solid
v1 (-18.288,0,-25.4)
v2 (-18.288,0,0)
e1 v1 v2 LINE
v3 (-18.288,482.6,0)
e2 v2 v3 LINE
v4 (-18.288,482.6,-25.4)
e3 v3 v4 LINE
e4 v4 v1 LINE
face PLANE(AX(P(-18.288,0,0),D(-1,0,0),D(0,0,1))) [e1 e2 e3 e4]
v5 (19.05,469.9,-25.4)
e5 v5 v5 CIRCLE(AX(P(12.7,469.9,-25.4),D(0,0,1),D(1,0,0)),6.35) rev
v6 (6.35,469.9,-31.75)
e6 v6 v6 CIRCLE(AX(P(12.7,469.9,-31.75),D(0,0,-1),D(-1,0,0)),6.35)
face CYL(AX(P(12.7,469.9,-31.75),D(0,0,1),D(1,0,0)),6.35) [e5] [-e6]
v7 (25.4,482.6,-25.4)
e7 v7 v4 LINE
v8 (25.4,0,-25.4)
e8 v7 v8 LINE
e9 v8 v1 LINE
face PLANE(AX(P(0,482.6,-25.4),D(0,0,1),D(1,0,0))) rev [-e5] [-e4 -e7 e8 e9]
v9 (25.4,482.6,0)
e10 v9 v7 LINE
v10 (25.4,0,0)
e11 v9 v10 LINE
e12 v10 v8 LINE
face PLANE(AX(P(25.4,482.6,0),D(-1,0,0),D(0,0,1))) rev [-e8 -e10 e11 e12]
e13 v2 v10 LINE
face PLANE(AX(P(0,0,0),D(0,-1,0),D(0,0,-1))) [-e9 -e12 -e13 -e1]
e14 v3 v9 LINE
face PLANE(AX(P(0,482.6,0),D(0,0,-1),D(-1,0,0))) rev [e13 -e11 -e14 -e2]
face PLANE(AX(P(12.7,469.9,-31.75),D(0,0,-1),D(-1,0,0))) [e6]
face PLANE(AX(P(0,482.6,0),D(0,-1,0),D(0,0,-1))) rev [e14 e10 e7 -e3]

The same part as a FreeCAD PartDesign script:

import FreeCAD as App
import Part
import Sketcher
from FreeCAD import Vector
Q = App.Units.Quantity

doc = App.newDocument("Part")
body = doc.addObject("PartDesign::Body", "Body")

# Sketch on XZ plane
sketch1 = doc.addObject("Sketcher::SketchObject", "Sketch")
body.addObject(sketch1)
sketch1.AttachmentSupport = (doc.XZ_Plane, [""])
sketch1.MapMode = "FlatFace"
sketch1.addGeometry([
    Part.LineSegment(Vector(0, -25, 0), Vector(0, 0, 0)),
    Part.LineSegment(Vector(0, 0, 0), Vector(25, 0, 0)),
    Part.LineSegment(Vector(25, 0, 0), Vector(25, -25, 0)),
    Part.LineSegment(Vector(25, -25, 0), Vector(0, -25, 0)),
], False)
sketch1.addConstraint([
    Sketcher.Constraint("Coincident", 0, 2, 1, 1),
    Sketcher.Constraint("Coincident", 1, 2, 2, 1),
    Sketcher.Constraint("Coincident", 2, 2, 3, 1),
    Sketcher.Constraint("Coincident", 3, 2, 0, 1),
    Sketcher.Constraint("Vertical", 0),
    Sketcher.Constraint("Horizontal", 1),
    Sketcher.Constraint("Vertical", 2),
    Sketcher.Constraint("Horizontal", 3),
    Sketcher.Constraint("Coincident", 0, 2, -1, 1),
    Sketcher.Constraint("Equal", 3, 0),
    Sketcher.Constraint("DistanceX", 1, 1, 1, 2, Q("1 in")),
])
pad1 = doc.addObject("PartDesign::Pad", "Pad")
body.addObject(pad1)
pad1.Profile = sketch1
pad1.Length = Q("19 in")
pad1.Reversed = True

# Sketch on XY plane
sketch2 = doc.addObject("Sketcher::SketchObject", "Sketch001")
body.addObject(sketch2)
sketch2.AttachmentSupport = (doc.XY_Plane, [""])
sketch2.MapMode = "FlatFace"
sketch2.AttachmentOffset = App.Placement(Vector(0, 0, -1 * 25.4), App.Rotation())
sketch2.addGeometry(Part.Circle(Vector(13, 470, 0), Vector(0, 0, 1), 6), False)
sketch2.addConstraint([
    Sketcher.Constraint("Diameter", 0, Q("0.5 in")),
    Sketcher.Constraint("DistanceX", -1, 1, 0, 3, Q("0.5 in")),
    Sketcher.Constraint("DistanceY", -1, 1, 0, 3, Q("18.5 in")),
])
pad2 = doc.addObject("PartDesign::Pad", "Pad001")
body.addObject(pad2)
pad2.Profile = sketch2
pad2.Length = Q("0.25 in")
pad2.Reversed = True

# Sketch on YZ plane
sketch3 = doc.addObject("Sketcher::SketchObject", "Sketch002")
body.addObject(sketch3)
sketch3.AttachmentSupport = (doc.YZ_Plane, [""])
sketch3.MapMode = "FlatFace"
sketch3.addGeometry([
    Part.LineSegment(Vector(483, -25, 0), Vector(0, -25, 0)),
    Part.LineSegment(Vector(0, -25, 0), Vector(0, 0, 0)),
    Part.LineSegment(Vector(0, 0, 0), Vector(483, 0, 0)),
    Part.LineSegment(Vector(483, 0, 0), Vector(483, -25, 0)),
], False)
sketch3.addConstraint([
    Sketcher.Constraint("Coincident", 0, 2, 1, 1),
    Sketcher.Constraint("Coincident", 1, 2, 2, 1),
    Sketcher.Constraint("Coincident", 2, 2, 3, 1),
    Sketcher.Constraint("Coincident", 3, 2, 0, 1),
    Sketcher.Constraint("Horizontal", 0),
    Sketcher.Constraint("Vertical", 1),
    Sketcher.Constraint("Horizontal", 2),
    Sketcher.Constraint("Vertical", 3),
    Sketcher.Constraint("Coincident", 1, 2, -1, 1),
    Sketcher.Constraint("DistanceX", 0, 2, 0, 1, Q("19 in")),
    Sketcher.Constraint("DistanceY", 1, 1, 1, 2, Q("1 in")),
])
pad3 = doc.addObject("PartDesign::Pad", "Pad002")
body.addObject(pad3)
pad3.Profile = sketch3
pad3.Length = Q("0.72 in")
pad3.Reversed = True

doc.recompute()
